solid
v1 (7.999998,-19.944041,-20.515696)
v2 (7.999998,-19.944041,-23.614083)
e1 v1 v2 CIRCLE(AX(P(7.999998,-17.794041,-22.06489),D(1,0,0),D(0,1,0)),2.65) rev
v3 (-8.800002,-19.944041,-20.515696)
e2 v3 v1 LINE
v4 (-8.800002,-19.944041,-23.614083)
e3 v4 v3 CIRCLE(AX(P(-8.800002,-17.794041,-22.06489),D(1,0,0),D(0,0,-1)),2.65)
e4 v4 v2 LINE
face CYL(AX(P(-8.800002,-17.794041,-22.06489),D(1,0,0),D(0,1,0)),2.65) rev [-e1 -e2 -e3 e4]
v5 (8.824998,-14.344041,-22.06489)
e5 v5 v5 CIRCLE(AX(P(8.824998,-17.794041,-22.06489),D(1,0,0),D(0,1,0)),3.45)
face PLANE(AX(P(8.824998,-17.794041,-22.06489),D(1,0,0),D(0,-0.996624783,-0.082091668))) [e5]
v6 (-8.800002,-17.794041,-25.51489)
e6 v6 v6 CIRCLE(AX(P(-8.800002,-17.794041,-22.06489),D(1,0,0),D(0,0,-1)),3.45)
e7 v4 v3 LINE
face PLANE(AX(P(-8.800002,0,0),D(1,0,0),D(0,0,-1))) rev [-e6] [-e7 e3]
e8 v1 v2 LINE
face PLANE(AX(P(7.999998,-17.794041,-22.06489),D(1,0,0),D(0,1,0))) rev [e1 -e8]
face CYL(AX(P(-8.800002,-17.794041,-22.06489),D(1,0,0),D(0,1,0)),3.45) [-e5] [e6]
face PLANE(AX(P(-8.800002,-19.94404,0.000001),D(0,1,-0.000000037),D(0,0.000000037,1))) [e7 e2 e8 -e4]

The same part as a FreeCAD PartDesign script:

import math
import FreeCAD as App
import Part
import Sketcher

V = App.Vector
Q = App.Units.Quantity

doc = App.newDocument("Part")
body = doc.addObject("PartDesign::Body", "Body")

sketch1 = body.newObject("Sketcher::SketchObject", "Sketch")
sketch1.AttachmentSupport = (doc.getObject("YZ_Plane"), [""])
sketch1.MapMode = "FlatFace"
sketch1.AttachmentOffset = App.Placement(V(0, 0, 8.199998), App.Rotation())
sketch1.addGeometry(Part.ArcOfCircle(Part.Circle(V(-17.8, -22.1, 0), V(0, 0, 1), 3.5), math.radians(-149), math.radians(0)), False)
sketch1.addGeometry(Part.ArcOfCircle(Part.Circle(V(-17.8, -22.1, 0), V(0, 0, 1), 3.5), math.radians(0), math.radians(149)), False)
sketch1.addGeometry(Part.ArcOfCircle(Part.Circle(V(-17.8, -22.1, 0), V(0, 0, 1), 3.4), math.radians(149), math.radians(211)), False)
sketch1.addGeometry(Part.LineSegment(V(-19.9, -23.6, 0), V(-19.9, -20.5, 0)), False)
sketch1.addGeometry(Part.ArcOfCircle(Part.Circle(V(-17.8, -22.1, 0), V(0, 0, 1), 2.6), math.radians(0), math.radians(144)), False)
sketch1.addGeometry(Part.ArcOfCircle(Part.Circle(V(-17.8, -22.1, 0), V(0, 0, 1), 2.6), math.radians(-144), math.radians(0)), False)
sketch1.addConstraint(Sketcher.Constraint("Tangent", 0, 2, 1, 1))
sketch1.addConstraint(Sketcher.Constraint("Tangent", 1, 2, 2, 1))
sketch1.addConstraint(Sketcher.Constraint("Tangent", 2, 2, 0, 1))
sketch1.addConstraint(Sketcher.Constraint("Coincident", 3, 2, 4, 2))
sketch1.addConstraint(Sketcher.Constraint("Tangent", 4, 1, 5, 2))
sketch1.addConstraint(Sketcher.Constraint("Coincident", 5, 1, 3, 1))
sketch1.addConstraint(Sketcher.Constraint("Vertical", 3))
sketch1.addConstraint(Sketcher.Constraint("Coincident", 4, 3, 0, 3))
sketch1.addConstraint(Sketcher.Constraint("Equal", 4, 5))
sketch1.addConstraint(Sketcher.Constraint("Horizontal", 5, 3, 0, 2))
sketch1.addConstraint(Sketcher.Constraint("Horizontal", 0, 2, 4, 1))
sketch1.addConstraint(Sketcher.Constraint("Vertical", 1, 2, 2, 2))
sketch1.addConstraint(Sketcher.Constraint("Radius", 0, Q("3.45 mm")))
sketch1.addConstraint(Sketcher.Constraint("Radius", 4, Q("2.65 mm")))
sketch1.addConstraint(Sketcher.Constraint("DistanceX", 1, 2, 3, 2, Q("0.8 mm")))
sketch1.addConstraint(Sketcher.Constraint("DistanceX", 1, 2, 2, 3, Q("2.95 mm")))
sketch1.addConstraint(Sketcher.Constraint("DistanceX", 0, 3, -1, 1, Q("17.794041 mm")))
sketch1.addConstraint(Sketcher.Constraint("DistanceY", 0, 3, -1, 1, Q("22.06489 mm")))
pad1 = body.newObject("PartDesign::Pad", "Pad")
pad1.Profile = sketch1
pad1.Length = 17
pad1.Reversed = True

sketch2 = body.newObject("Sketcher::SketchObject", "Sketch001")
sketch2.AttachmentSupport = (doc.getObject("YZ_Plane"), [""])
sketch2.MapMode = "FlatFace"
sketch2.AttachmentOffset = App.Placement(V(0, 0, 8.824998), App.Rotation())
sketch2.addGeometry(Part.Circle(V(-17.8, -22.1, 0), V(0, 0, 1), 3.5), False)
sketch2.addConstraint(Sketcher.Constraint("Diameter", 0, Q("6.9 mm")))
sketch2.addConstraint(Sketcher.Constraint("DistanceX", 0, 3, -1, 1, Q("17.794041 mm")))
sketch2.addConstraint(Sketcher.Constraint("DistanceY", 0, 3, -1, 1, Q("22.06489 mm")))
pad2 = body.newObject("PartDesign::Pad", "Pad001")
pad2.Profile = sketch2
pad2.Length = 0.825
pad2.Reversed = True

doc.recompute()
